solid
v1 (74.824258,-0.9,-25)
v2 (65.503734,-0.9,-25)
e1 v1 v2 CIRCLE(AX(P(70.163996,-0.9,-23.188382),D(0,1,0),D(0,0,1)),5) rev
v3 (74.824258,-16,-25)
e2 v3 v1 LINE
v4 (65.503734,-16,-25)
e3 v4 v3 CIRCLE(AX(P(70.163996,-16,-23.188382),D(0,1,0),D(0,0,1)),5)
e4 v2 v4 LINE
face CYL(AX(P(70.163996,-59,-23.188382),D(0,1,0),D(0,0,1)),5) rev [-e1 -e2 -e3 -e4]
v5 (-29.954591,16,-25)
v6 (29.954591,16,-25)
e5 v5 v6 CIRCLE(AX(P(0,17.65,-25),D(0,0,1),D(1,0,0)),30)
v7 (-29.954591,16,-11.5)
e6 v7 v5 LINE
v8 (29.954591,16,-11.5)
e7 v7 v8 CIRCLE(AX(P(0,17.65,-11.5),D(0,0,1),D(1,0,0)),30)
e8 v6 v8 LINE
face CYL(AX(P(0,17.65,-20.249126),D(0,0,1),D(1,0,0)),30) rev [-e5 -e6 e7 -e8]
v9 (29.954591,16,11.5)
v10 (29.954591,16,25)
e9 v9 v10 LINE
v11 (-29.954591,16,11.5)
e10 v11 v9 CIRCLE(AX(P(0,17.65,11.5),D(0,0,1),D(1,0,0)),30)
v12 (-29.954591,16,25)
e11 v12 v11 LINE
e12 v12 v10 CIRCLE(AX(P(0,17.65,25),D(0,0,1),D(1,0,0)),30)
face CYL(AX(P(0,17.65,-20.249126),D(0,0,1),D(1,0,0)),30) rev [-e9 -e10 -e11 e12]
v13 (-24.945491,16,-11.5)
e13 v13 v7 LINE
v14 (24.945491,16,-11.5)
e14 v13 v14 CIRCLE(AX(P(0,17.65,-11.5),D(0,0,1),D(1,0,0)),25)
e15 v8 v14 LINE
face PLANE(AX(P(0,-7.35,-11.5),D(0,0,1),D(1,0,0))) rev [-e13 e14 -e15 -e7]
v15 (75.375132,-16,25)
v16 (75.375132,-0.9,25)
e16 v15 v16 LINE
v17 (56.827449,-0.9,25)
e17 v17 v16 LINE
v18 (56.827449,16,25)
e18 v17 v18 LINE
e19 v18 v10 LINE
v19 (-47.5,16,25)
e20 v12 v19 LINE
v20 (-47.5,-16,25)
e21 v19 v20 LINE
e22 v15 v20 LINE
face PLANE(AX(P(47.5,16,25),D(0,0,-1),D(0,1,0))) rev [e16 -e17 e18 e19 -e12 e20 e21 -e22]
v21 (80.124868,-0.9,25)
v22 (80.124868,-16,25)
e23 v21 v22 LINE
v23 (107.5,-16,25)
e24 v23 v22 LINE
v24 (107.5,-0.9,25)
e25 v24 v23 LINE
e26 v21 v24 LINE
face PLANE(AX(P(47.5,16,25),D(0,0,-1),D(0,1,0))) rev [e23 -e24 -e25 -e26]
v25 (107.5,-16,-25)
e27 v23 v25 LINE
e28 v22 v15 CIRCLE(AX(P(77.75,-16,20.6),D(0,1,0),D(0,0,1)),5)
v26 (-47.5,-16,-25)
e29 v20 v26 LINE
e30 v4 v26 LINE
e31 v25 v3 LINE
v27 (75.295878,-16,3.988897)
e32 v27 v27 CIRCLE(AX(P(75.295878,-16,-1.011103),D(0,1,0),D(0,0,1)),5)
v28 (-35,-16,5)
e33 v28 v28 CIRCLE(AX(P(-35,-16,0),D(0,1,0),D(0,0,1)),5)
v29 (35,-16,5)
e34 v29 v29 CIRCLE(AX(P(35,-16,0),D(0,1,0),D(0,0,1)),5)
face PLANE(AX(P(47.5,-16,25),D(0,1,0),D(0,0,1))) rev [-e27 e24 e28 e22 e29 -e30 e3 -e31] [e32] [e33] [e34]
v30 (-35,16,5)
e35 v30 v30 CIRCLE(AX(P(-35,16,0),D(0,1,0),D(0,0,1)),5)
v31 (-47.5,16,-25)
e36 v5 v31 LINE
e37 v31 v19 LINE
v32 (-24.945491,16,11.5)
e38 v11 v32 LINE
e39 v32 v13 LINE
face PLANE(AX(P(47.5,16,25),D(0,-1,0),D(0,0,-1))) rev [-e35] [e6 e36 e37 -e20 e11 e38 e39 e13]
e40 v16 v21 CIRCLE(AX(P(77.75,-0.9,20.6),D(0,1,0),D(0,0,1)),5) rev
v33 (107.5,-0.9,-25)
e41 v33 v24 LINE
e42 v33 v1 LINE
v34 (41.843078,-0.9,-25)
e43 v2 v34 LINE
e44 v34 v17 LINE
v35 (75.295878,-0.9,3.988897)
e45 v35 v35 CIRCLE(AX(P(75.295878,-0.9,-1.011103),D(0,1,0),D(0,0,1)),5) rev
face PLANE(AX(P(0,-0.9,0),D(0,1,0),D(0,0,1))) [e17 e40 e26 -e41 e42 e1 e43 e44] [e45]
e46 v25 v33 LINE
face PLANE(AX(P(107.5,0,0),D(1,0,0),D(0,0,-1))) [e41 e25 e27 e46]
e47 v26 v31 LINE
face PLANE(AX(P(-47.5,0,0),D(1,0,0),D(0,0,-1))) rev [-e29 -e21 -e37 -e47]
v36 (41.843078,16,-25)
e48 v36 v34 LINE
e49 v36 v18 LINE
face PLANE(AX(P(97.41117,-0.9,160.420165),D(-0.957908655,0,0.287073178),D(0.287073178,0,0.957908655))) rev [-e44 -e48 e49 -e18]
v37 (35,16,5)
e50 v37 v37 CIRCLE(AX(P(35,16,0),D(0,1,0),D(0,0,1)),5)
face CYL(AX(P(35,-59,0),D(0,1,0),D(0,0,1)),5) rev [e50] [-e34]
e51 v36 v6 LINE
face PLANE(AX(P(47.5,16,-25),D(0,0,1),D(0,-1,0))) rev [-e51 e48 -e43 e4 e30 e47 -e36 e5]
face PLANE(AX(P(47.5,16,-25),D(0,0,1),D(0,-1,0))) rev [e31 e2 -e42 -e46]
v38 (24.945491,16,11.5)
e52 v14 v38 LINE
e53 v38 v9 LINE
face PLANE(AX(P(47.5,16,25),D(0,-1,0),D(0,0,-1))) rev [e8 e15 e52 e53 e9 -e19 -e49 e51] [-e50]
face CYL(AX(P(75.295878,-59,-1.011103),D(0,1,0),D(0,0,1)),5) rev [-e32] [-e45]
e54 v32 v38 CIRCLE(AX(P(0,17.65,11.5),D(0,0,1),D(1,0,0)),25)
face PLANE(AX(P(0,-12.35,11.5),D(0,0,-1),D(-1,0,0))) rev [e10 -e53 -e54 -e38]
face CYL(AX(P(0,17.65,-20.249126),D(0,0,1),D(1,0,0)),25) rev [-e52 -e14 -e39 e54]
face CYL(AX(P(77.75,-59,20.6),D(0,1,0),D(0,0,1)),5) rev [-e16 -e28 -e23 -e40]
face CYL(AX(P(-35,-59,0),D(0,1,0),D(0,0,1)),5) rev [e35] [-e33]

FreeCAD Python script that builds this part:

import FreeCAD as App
import Part
import Sketcher
Q = App.Units.Quantity


def add_polygon(sketch, points):
    """Adds a closed chain of lines whose ends are joined by coincident constraints."""
    first, n = sketch.GeometryCount, len(points)
    for a, b in zip(points, points[1:] + points[:1]):
        sketch.addGeometry(Part.LineSegment(App.Vector(*a, 0), App.Vector(*b, 0)), False)
    for i in range(n):
        sketch.addConstraint(Sketcher.Constraint("Coincident", first + i, 2, first + (i + 1) % n, 1))

doc = App.newDocument("Part")
body = doc.addObject("PartDesign::Body", "Body")

# Sketch on YZ plane
sketch1 = body.newObject("Sketcher::SketchObject", "Sketch")
sketch1.AttachmentSupport = (doc.getObject("YZ_Plane"), [""])
sketch1.MapMode = "FlatFace"
add_polygon(sketch1, [(16, 25), (-16, 25), (-16, -25), (16, -25)])  # lines 0-3
sketch1.addConstraint([
    Sketcher.Constraint("Horizontal", 0),
    Sketcher.Constraint("Vertical", 1),
    Sketcher.Constraint("Horizontal", 2),
    Sketcher.Constraint("Vertical", 3),
    Sketcher.Constraint("Symmetric", 0, 2, 2, 2, -1, 1),
    Sketcher.Constraint("DistanceX", 0, 2, 0, 1, Q("32 mm")),
    Sketcher.Constraint("DistanceY", 1, 2, 1, 1, Q("50 mm")),
])
pad1 = body.newObject("PartDesign::Pad", "Pad")
pad1.Profile = sketch1
pad1.Length = 95
pad1.Midplane = True

# Sketch on YZ plane
sketch2 = body.newObject("Sketcher::SketchObject", "Sketch001")
sketch2.AttachmentSupport = (doc.getObject("YZ_Plane"), [""])
sketch2.MapMode = "FlatFace"
add_polygon(sketch2, [(-12, 25), (-12, 12), (-7, 12), (-7, -12), (-12, -12), (-12, -25), (17, -25), (17, 25)])  # lines 0-7
sketch2.addGeometry(Part.LineSegment(App.Vector(18, 25, 0), App.Vector(18, -25, 0)), True)  # axis
sketch2.addConstraint([
    Sketcher.Constraint("Vertical", 0),
    Sketcher.Constraint("Horizontal", 1),
    Sketcher.Constraint("Vertical", 2),
    Sketcher.Constraint("Horizontal", 3),
    Sketcher.Constraint("Vertical", 4),
    Sketcher.Constraint("Horizontal", 5),
    Sketcher.Constraint("Vertical", 6),
    Sketcher.Constraint("Horizontal", 7),
    Sketcher.Constraint("Vertical", 8),
    Sketcher.Constraint("Symmetric", 0, 2, 3, 2, -1),
    Sketcher.Constraint("Horizontal", 7, 2, 8, 1),
    Sketcher.Constraint("Horizontal", 5, 2, 8, 2),
    Sketcher.Constraint("Equal", 0, 4),
    Sketcher.Constraint("DistanceX", 1, 1, 1, 2, Q("5 mm")),
    Sketcher.Constraint("DistanceY", 2, 2, 2, 1, Q("23 mm")),
    Sketcher.Constraint("DistanceY", 6, 1, 6, 2, Q("50 mm")),
    Sketcher.Constraint("DistanceX", 1, 2, 8, 1, Q("25 mm")),
    Sketcher.Constraint("DistanceX", 0, 2, -1, 1, Q("12.35 mm")),
    Sketcher.Constraint("DistanceX", 5, 1, 5, 2, Q("28.945889 mm")),
])
groove = body.newObject("PartDesign::Groove", "Groove")
groove.Profile = sketch2
groove.ReferenceAxis = (sketch2, ["Axis0"])
groove.Angle = 360

# Sketch on YZ plane
sketch3 = body.newObject("Sketcher::SketchObject", "Sketch002")
sketch3.AttachmentSupport = (doc.getObject("YZ_Plane"), [""])
sketch3.MapMode = "FlatFace"
sketch3.AttachmentOffset = App.Placement(App.Vector(0, 0, 47.5), App.Rotation())
add_polygon(sketch3, [(16, 25), (-16, 25), (-16, -25), (16, -25)])  # lines 0-3
sketch3.addConstraint([
    Sketcher.Constraint("Horizontal", 0),
    Sketcher.Constraint("Vertical", 1),
    Sketcher.Constraint("Horizontal", 2),
    Sketcher.Constraint("Vertical", 3),
    Sketcher.Constraint("Symmetric", 0, 2, 2, 2, -1, 1),
    Sketcher.Constraint("DistanceX", 0, 2, 0, 1, Q("32 mm")),
    Sketcher.Constraint("DistanceY", 1, 2, 1, 1, Q("50 mm")),
])
pad2 = body.newObject("PartDesign::Pad", "Pad001")
pad2.Profile = sketch3
pad2.Length = 60

# Sketch on XZ plane
sketch4 = body.newObject("Sketcher::SketchObject", "Sketch003")
sketch4.AttachmentSupport = (doc.getObject("XZ_Plane"), [""])
sketch4.MapMode = "FlatFace"
sketch4.AttachmentOffset = App.Placement(App.Vector(0, 0, -16), App.Rotation())
sketch4.addGeometry([
    Part.Circle(App.Vector(-35, 0, 0), App.Vector(0, 0, 1), 5),  # 0
    Part.Circle(App.Vector(35, 0, 0), App.Vector(0, 0, 1), 5),  # 1
    Part.Circle(App.Vector(78, 21, 0), App.Vector(0, 0, 1), 5),  # 2
    Part.Circle(App.Vector(75, -1, 0), App.Vector(0, 0, 1), 5),  # 3
    Part.Circle(App.Vector(70, -23, 0), App.Vector(0, 0, 1), 5),  # 4
], False)
sketch4.addConstraint([
    Sketcher.Constraint("Equal", 0, 1),
    Sketcher.Constraint("Equal", 1, 2),
    Sketcher.Constraint("Equal", 2, 3),
    Sketcher.Constraint("Equal", 3, 4),
    Sketcher.Constraint("Symmetric", 0, 3, 1, 3, -1, 1),
    Sketcher.Constraint("PointOnObject", 0, 3, -1),
    Sketcher.Constraint("Diameter", 0, Q("10 mm")),
    Sketcher.Constraint("DistanceX", 0, 3, -1, 1, Q("35 mm")),
    Sketcher.Constraint("DistanceY", -1, 1, 2, 3, Q("20.6 mm")),
    Sketcher.Constraint("DistanceX", -1, 1, 2, 3, Q("77.75 mm")),
    Sketcher.Constraint("DistanceX", -1, 1, 3, 3, Q("75.295878 mm")),
    Sketcher.Constraint("DistanceY", 4, 3, -1, 1, Q("23.188382 mm")),
    Sketcher.Constraint("DistanceY", 4, 3, 3, 3, Q("22.177278 mm")),
    Sketcher.Constraint("DistanceX", -1, 1, 4, 3, Q("70.163996 mm")),
])
pocket1 = body.newObject("PartDesign::Pocket", "Pocket")
pocket1.Profile = sketch4
pocket1.Length = 75
pocket1.Reversed = True

# Sketch on XZ plane
sketch5 = body.newObject("Sketcher::SketchObject", "Sketch004")
sketch5.AttachmentSupport = (doc.getObject("XZ_Plane"), [""])
sketch5.MapMode = "FlatFace"
sketch5.AttachmentOffset = App.Placement(App.Vector(0, 0, -16), App.Rotation())
add_polygon(sketch5, [(40, -31), (97, 160), (161, 141), (104, -50)])  # lines 0-3
sketch5.addConstraint([
    Sketcher.Constraint("Perpendicular", 0, 1),
    Sketcher.Constraint("Perpendicular", 1, 2),
    Sketcher.Constraint("Perpendicular", 2, 3),
    Sketcher.Constraint("DistanceX", -1, 1, 3, 2, Q("40 mm")),
    Sketcher.Constraint("DistanceY", 3, 2, -1, 1, Q("31.15 mm")),
    Sketcher.Constraint("DistanceX", -1, 1, 0, 2, Q("97.41117 mm")),
    Sketcher.Constraint("DistanceY", 2, 2, -1, 1, Q("50.272922 mm")),
    Sketcher.Constraint("Distance", 0, Q("199.987926 mm")),
])
pocket2 = body.newObject("PartDesign::Pocket", "Pocket001")
pocket2.Profile = sketch5
pocket2.Length = 16.9
pocket2.Reversed = True

doc.recompute()
